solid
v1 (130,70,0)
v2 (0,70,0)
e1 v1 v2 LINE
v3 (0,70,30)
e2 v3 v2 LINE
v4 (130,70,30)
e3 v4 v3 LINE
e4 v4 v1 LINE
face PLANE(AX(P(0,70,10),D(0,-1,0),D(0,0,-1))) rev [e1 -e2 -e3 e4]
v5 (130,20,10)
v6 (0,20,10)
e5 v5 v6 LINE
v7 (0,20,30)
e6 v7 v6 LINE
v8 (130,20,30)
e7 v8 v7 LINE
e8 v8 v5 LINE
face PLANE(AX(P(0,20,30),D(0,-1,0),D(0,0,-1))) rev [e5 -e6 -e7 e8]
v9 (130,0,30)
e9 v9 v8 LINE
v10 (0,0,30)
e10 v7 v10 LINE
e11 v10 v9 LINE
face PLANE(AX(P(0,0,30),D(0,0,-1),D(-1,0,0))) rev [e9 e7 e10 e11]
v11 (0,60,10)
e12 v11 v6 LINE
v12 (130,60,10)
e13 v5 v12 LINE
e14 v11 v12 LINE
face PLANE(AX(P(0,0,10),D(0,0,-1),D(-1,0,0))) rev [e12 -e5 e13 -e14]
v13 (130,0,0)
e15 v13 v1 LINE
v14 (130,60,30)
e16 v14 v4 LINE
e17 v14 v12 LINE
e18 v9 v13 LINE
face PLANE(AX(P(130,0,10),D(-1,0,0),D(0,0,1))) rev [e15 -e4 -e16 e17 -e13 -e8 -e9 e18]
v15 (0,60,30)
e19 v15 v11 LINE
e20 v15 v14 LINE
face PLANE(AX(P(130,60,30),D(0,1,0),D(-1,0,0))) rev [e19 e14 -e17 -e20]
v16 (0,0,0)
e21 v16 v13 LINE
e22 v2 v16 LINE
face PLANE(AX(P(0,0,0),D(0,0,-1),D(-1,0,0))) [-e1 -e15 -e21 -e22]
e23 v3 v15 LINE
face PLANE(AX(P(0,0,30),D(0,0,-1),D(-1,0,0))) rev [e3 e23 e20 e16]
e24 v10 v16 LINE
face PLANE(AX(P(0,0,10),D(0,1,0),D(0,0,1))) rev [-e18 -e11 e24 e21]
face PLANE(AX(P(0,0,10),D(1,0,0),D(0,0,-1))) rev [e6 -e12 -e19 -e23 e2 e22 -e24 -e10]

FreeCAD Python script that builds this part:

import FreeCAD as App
import Part
import Sketcher
from FreeCAD import Vector
Q = App.Units.Quantity

doc = App.newDocument("Part")
body = doc.addObject("PartDesign::Body", "Body")

# Sketch on XY plane
sketch1 = body.newObject("Sketcher::SketchObject", "Sketch")
sketch1.AttachmentSupport = (doc.getObject("XY_Plane"), [""])
sketch1.MapMode = "FlatFace"
sketch1.addGeometry([
    Part.LineSegment(Vector(0, 70, 0), Vector(0, 0, 0)),
    Part.LineSegment(Vector(0, 0, 0), Vector(130, 0, 0)),
    Part.LineSegment(Vector(130, 0, 0), Vector(130, 70, 0)),
    Part.LineSegment(Vector(130, 70, 0), Vector(0, 70, 0)),
], False)
sketch1.addConstraint([
    Sketcher.Constraint("Coincident", 0, 2, 1, 1),
    Sketcher.Constraint("Coincident", 1, 2, 2, 1),
    Sketcher.Constraint("Coincident", 2, 2, 3, 1),
    Sketcher.Constraint("Coincident", 3, 2, 0, 1),
    Sketcher.Constraint("Vertical", 0),
    Sketcher.Constraint("Horizontal", 1),
    Sketcher.Constraint("Vertical", 2),
    Sketcher.Constraint("Horizontal", 3),
    Sketcher.Constraint("Coincident", 0, 2, -1, 1),
    Sketcher.Constraint("DistanceX", 1, 1, 1, 2, Q("130 mm")),
    Sketcher.Constraint("DistanceY", 0, 2, 0, 1, Q("70 mm")),
])
pad1 = body.newObject("PartDesign::Pad", "Pad")
pad1.Profile = sketch1
pad1.Length = 10

# Sketch on XY plane
sketch2 = body.newObject("Sketcher::SketchObject", "Sketch001")
sketch2.AttachmentSupport = (doc.getObject("XY_Plane"), [""])
sketch2.MapMode = "FlatFace"
sketch2.AttachmentOffset = App.Placement(Vector(0, 0, 10), App.Rotation())
sketch2.addGeometry([
    Part.LineSegment(Vector(0, 70, 0), Vector(0, 60, 0)),  # 0
    Part.LineSegment(Vector(0, 60, 0), Vector(130, 60, 0)),  # 1
    Part.LineSegment(Vector(130, 60, 0), Vector(130, 70, 0)),  # 2
    Part.LineSegment(Vector(130, 70, 0), Vector(0, 70, 0)),  # 3
    Part.LineSegment(Vector(0, 20, 0), Vector(0, 0, 0)),  # 4
    Part.LineSegment(Vector(0, 0, 0), Vector(130, 0, 0)),  # 5
    Part.LineSegment(Vector(130, 0, 0), Vector(130, 20, 0)),  # 6
    Part.LineSegment(Vector(130, 20, 0), Vector(0, 20, 0)),  # 7
], False)
sketch2.addConstraint([
    Sketcher.Constraint("Coincident", 0, 2, 1, 1),
    Sketcher.Constraint("Coincident", 1, 2, 2, 1),
    Sketcher.Constraint("Coincident", 2, 2, 3, 1),
    Sketcher.Constraint("Coincident", 3, 2, 0, 1),
    Sketcher.Constraint("Coincident", 4, 2, 5, 1),
    Sketcher.Constraint("Coincident", 5, 2, 6, 1),
    Sketcher.Constraint("Coincident", 6, 2, 7, 1),
    Sketcher.Constraint("Coincident", 7, 2, 4, 1),
    Sketcher.Constraint("Vertical", 0),
    Sketcher.Constraint("Horizontal", 1),
    Sketcher.Constraint("Vertical", 2),
    Sketcher.Constraint("Horizontal", 3),
    Sketcher.Constraint("Vertical", 4),
    Sketcher.Constraint("Horizontal", 5),
    Sketcher.Constraint("Vertical", 6),
    Sketcher.Constraint("Horizontal", 7),
    Sketcher.Constraint("Coincident", 4, 2, -1, 1),
    Sketcher.Constraint("PointOnObject", 0, 2, -2),
    Sketcher.Constraint("Vertical", 2, 2, 5, 2),
    Sketcher.Constraint("DistanceX", 1, 1, 1, 2, Q("130 mm")),
    Sketcher.Constraint("DistanceY", 0, 2, 0, 1, Q("10 mm")),
    Sketcher.Constraint("DistanceY", 4, 2, 4, 1, Q("20 mm")),
    Sketcher.Constraint("DistanceY", -1, 1, 0, 2, Q("60 mm")),
])
pad2 = body.newObject("PartDesign::Pad", "Pad001")
pad2.Profile = sketch2
pad2.Length = 20

doc.recompute()
